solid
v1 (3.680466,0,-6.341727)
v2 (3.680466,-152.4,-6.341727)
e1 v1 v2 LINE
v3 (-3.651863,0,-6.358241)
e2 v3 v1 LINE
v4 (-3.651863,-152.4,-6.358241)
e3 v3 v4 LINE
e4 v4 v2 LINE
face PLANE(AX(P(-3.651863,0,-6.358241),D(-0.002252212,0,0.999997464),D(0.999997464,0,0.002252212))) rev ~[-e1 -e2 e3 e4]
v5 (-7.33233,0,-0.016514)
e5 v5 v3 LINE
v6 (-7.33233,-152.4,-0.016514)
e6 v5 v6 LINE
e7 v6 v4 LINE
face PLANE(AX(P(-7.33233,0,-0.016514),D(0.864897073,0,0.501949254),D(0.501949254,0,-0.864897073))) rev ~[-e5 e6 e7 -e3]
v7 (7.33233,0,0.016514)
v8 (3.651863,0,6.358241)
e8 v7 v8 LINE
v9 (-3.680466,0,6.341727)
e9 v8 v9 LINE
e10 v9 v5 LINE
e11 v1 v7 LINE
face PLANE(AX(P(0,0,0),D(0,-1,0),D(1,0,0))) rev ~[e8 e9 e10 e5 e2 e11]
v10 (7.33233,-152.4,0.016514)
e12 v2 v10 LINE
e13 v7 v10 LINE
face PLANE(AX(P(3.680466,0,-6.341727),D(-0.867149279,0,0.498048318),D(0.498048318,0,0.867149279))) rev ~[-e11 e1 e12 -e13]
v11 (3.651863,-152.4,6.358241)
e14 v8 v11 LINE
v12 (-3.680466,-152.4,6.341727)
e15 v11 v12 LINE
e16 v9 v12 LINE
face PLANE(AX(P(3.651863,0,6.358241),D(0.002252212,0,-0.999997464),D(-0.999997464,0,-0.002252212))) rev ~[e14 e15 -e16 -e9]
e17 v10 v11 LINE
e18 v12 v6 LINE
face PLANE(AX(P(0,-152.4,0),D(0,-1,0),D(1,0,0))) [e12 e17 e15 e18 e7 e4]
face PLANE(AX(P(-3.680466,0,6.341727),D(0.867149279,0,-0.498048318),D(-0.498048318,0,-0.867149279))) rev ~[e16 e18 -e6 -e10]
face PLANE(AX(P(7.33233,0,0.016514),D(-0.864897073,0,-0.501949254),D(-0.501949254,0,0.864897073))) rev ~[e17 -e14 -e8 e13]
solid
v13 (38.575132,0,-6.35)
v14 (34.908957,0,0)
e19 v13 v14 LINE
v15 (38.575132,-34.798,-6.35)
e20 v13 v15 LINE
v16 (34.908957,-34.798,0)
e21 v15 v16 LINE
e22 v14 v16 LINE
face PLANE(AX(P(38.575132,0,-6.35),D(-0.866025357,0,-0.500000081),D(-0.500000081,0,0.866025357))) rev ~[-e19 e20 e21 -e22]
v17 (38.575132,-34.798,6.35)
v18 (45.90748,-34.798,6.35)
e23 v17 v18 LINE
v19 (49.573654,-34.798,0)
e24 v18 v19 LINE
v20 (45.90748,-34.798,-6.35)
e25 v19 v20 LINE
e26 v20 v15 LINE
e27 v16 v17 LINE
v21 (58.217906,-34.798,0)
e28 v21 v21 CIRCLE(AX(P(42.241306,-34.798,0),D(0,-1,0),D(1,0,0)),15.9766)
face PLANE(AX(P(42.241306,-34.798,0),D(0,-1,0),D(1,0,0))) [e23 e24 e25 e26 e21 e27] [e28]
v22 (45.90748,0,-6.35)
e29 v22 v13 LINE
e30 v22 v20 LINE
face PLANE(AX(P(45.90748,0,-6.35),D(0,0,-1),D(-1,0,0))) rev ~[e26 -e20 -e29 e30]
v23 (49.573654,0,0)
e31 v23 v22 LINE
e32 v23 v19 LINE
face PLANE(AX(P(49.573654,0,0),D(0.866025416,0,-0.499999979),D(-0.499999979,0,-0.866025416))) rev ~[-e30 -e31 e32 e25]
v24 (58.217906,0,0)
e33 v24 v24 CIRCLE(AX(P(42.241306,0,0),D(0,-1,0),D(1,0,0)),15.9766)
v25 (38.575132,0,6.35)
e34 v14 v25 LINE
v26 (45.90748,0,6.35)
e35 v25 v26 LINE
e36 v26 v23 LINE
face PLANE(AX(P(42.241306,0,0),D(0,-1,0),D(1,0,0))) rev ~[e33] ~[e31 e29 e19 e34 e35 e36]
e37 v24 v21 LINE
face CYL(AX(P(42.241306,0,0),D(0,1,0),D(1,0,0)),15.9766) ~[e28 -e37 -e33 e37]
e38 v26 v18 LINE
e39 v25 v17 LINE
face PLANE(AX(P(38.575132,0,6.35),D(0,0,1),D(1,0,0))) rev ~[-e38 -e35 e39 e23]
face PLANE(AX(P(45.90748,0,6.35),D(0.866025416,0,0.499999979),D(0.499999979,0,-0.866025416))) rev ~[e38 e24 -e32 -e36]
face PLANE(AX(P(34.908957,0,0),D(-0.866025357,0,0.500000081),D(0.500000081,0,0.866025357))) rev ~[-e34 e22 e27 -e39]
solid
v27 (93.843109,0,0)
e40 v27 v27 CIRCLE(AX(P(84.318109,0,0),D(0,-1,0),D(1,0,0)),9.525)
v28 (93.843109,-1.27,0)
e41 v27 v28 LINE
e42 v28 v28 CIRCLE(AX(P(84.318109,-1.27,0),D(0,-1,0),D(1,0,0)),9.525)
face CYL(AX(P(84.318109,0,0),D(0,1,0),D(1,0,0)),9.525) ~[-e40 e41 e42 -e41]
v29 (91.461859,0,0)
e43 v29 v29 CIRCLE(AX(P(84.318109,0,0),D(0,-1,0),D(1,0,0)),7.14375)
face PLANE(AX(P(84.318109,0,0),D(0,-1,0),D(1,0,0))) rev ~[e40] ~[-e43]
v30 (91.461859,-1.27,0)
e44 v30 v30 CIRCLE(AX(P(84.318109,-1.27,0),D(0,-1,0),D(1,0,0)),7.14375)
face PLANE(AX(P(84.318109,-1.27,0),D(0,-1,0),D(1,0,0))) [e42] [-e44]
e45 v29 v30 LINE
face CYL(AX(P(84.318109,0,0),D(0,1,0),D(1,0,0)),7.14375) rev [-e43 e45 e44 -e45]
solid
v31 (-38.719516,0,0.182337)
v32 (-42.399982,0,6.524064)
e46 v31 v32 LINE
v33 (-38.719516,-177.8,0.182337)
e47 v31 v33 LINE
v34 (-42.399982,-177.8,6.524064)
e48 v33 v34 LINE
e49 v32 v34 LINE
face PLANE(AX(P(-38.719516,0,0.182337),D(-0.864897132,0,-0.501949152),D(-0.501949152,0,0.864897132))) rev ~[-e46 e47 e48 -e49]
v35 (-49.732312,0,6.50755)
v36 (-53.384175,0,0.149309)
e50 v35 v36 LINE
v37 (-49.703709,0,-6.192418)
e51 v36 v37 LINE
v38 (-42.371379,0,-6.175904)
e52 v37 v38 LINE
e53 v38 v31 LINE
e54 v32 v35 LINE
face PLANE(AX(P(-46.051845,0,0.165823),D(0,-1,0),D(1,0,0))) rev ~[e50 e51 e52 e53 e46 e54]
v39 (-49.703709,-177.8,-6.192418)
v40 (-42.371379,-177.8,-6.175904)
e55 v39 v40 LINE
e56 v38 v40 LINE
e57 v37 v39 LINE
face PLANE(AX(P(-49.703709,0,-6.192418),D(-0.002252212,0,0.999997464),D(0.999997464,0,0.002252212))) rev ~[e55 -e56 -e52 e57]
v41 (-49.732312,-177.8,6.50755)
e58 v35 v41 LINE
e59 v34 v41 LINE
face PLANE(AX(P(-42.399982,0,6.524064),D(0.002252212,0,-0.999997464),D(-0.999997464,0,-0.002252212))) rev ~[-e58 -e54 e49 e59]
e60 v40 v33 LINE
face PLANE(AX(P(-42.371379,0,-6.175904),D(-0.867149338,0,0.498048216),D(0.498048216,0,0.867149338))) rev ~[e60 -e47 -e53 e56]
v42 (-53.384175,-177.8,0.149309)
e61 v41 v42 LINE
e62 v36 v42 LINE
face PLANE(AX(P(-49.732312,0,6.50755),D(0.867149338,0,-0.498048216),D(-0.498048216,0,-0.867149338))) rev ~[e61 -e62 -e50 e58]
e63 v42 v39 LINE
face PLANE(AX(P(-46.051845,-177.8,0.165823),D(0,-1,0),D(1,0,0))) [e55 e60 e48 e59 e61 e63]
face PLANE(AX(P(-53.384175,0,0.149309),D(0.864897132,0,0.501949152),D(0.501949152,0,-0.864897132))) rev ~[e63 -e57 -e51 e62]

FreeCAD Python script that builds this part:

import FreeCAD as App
import Part
import Sketcher

V = App.Vector
Q = App.Units.Quantity

doc = App.newDocument("Part")
params = doc.addObject("Spreadsheet::Sheet", "Params")
for row, (alias, value) in enumerate([
    ("pad1_length", "6 in"),
    ("pad2_length", "7 in"),
    ("sketch3_diameter", "1.258 in"),
    ("pad3_length", "1.37 in"),
    ("sketch4_diameter", "0.75 in"),
    ("sketch4_diameter2", "0.5625 in"),
    ("pad4_length", "0.05 in"),
], start=1):
    params.set(f"A{row}", alias)
    params.set(f"B{row}", "=" + value)
    params.setAlias(f"B{row}", alias)

body = doc.addObject("PartDesign::Body", "Body")

sketch1 = body.newObject("Sketcher::SketchObject", "Sketch")
sketch1.AttachmentSupport = (doc.getObject("XZ_Plane"), [""])
sketch1.MapMode = "FlatFace"
sketch1.addGeometry(Part.LineSegment(V(7, 0, 0), V(4, 6, 0)), False)
sketch1.addGeometry(Part.LineSegment(V(4, 6, 0), V(-4, 6, 0)), False)
sketch1.addGeometry(Part.LineSegment(V(-4, 6, 0), V(-7, 0, 0)), False)
sketch1.addGeometry(Part.LineSegment(V(-7, 0, 0), V(-4, -6, 0)), False)
sketch1.addGeometry(Part.LineSegment(V(-4, -6, 0), V(4, -6, 0)), False)
sketch1.addGeometry(Part.LineSegment(V(4, -6, 0), V(7, 0, 0)), False)
sketch1.addConstraint(Sketcher.Constraint("Coincident", 0, 2, 1, 1))
sketch1.addConstraint(Sketcher.Constraint("Coincident", 1, 2, 2, 1))
sketch1.addConstraint(Sketcher.Constraint("Coincident", 2, 2, 3, 1))
sketch1.addConstraint(Sketcher.Constraint("Coincident", 3, 2, 4, 1))
sketch1.addConstraint(Sketcher.Constraint("Coincident", 4, 2, 5, 1))
sketch1.addConstraint(Sketcher.Constraint("Coincident", 5, 2, 0, 1))
sketch1.addConstraint(Sketcher.Constraint("Symmetric", 0, 2, 3, 2, -1, 1))
sketch1.addConstraint(Sketcher.Constraint("Symmetric", 1, 2, 4, 2, -1, 1))
sketch1.addConstraint(Sketcher.Constraint("Symmetric", 2, 2, 5, 2, -1, 1))
sketch1.addConstraint(Sketcher.Constraint("Equal", 0, 1))
sketch1.addConstraint(Sketcher.Constraint("Equal", 1, 2))
sketch1.addConstraint(Sketcher.Constraint("Distance", 0, Q("7.332349 mm")))
sketch1.addConstraint(Sketcher.Constraint("DistanceY", -1, 1, 0, 2, Q("6.358241 mm")))
sketch1.addConstraint(Sketcher.Constraint("DistanceX", 2, 2, -1, 1, Q("7.33233 mm")))
sketch1.addConstraint(Sketcher.Constraint("DistanceY", 2, 2, 1, 2, Q("6.358241 mm")))
pad1 = body.newObject("PartDesign::Pad", "Pad")
pad1.Profile = sketch1
pad1.setExpression("Length", "Params.pad1_length")
body2 = doc.addObject("PartDesign::Body", "Body001")

sketch2 = body2.newObject("Sketcher::SketchObject", "Sketch001")
sketch2.AttachmentSupport = (doc.getObject("XZ_Plane001"), [""])
sketch2.MapMode = "FlatFace"
sketch2.addGeometry(Part.LineSegment(V(-39, 0, 0), V(-42, 7, 0)), False)
sketch2.addGeometry(Part.LineSegment(V(-42, 7, 0), V(-50, 7, 0)), False)
sketch2.addGeometry(Part.LineSegment(V(-50, 7, 0), V(-53, 0, 0)), False)
sketch2.addGeometry(Part.LineSegment(V(-53, 0, 0), V(-50, -6, 0)), False)
sketch2.addGeometry(Part.LineSegment(V(-50, -6, 0), V(-42, -6, 0)), False)
sketch2.addGeometry(Part.LineSegment(V(-42, -6, 0), V(-39, 0, 0)), False)
sketch2.addConstraint(Sketcher.Constraint("Coincident", 0, 2, 1, 1))
sketch2.addConstraint(Sketcher.Constraint("Coincident", 1, 2, 2, 1))
sketch2.addConstraint(Sketcher.Constraint("Coincident", 2, 2, 3, 1))
sketch2.addConstraint(Sketcher.Constraint("Coincident", 3, 2, 4, 1))
sketch2.addConstraint(Sketcher.Constraint("Coincident", 4, 2, 5, 1))
sketch2.addConstraint(Sketcher.Constraint("Coincident", 5, 2, 0, 1))
sketch2.addConstraint(Sketcher.Constraint("Parallel", 0, 3))
sketch2.addConstraint(Sketcher.Constraint("Parallel", 1, 4))
sketch2.addConstraint(Sketcher.Constraint("Parallel", 2, 5))
sketch2.addConstraint(Sketcher.Constraint("Equal", 0, 1))
sketch2.addConstraint(Sketcher.Constraint("Equal", 1, 2))
sketch2.addConstraint(Sketcher.Constraint("Equal", 2, 3))
sketch2.addConstraint(Sketcher.Constraint("Distance", 0, Q("7.332348 mm")))
sketch2.addConstraint(Sketcher.Constraint("DistanceY", -1, 1, 1, 2, Q("6.50755 mm")))
sketch2.addConstraint(Sketcher.Constraint("DistanceY", -1, 1, 2, 2, Q("0.149309 mm")))
sketch2.addConstraint(Sketcher.Constraint("DistanceX", 3, 2, -1, 1, Q("49.703709 mm")))
sketch2.addConstraint(Sketcher.Constraint("DistanceY", 3, 2, 0, 2, Q("12.716482 mm")))
sketch2.addConstraint(Sketcher.Constraint("DistanceX", 2, 2, 5, 2, Q("14.664659 mm")))
pad2 = body2.newObject("PartDesign::Pad", "Pad001")
pad2.Profile = sketch2
pad2.setExpression("Length", "Params.pad2_length")
body3 = doc.addObject("PartDesign::Body", "Body002")

sketch3 = body3.newObject("Sketcher::SketchObject", "Sketch002")
sketch3.AttachmentSupport = (doc.getObject("XZ_Plane002"), [""])
sketch3.MapMode = "FlatFace"
sketch3.addGeometry(Part.Circle(V(42, 0, 0), V(0, 0, 1), 16), False)
sketch3.addGeometry(Part.LineSegment(V(39, -6, 0), V(35, 0, 0)), False)
sketch3.addGeometry(Part.LineSegment(V(35, 0, 0), V(39, 6, 0)), False)
sketch3.addGeometry(Part.LineSegment(V(39, 6, 0), V(46, 6, 0)), False)
sketch3.addGeometry(Part.LineSegment(V(46, 6, 0), V(50, 0, 0)), False)
sketch3.addGeometry(Part.LineSegment(V(50, 0, 0), V(46, -6, 0)), False)
sketch3.addGeometry(Part.LineSegment(V(46, -6, 0), V(39, -6, 0)), False)
sketch3.addConstraint(Sketcher.Constraint("Coincident", 1, 2, 2, 1))
sketch3.addConstraint(Sketcher.Constraint("Coincident", 2, 2, 3, 1))
sketch3.addConstraint(Sketcher.Constraint("Coincident", 3, 2, 4, 1))
sketch3.addConstraint(Sketcher.Constraint("Coincident", 4, 2, 5, 1))
sketch3.addConstraint(Sketcher.Constraint("Coincident", 5, 2, 6, 1))
sketch3.addConstraint(Sketcher.Constraint("Coincident", 6, 2, 1, 1))
sketch3.addConstraint(Sketcher.Constraint("Horizontal", 3))
sketch3.addConstraint(Sketcher.Constraint("Horizontal", 6))
sketch3.addConstraint(Sketcher.Constraint("Symmetric", 3, 2, 5, 2, -1))
sketch3.addConstraint(Sketcher.Constraint("PointOnObject", 0, 3, -1))
sketch3.addConstraint(Sketcher.Constraint("PointOnObject", 1, 2, -1))
sketch3.addConstraint(Sketcher.Constraint("PointOnObject", 4, 2, -1))
sketch3.addConstraint(Sketcher.Constraint("Parallel", 1, 4))
sketch3.addConstraint(Sketcher.Constraint("Parallel", 2, 5))
sketch3.addConstraint(Sketcher.Constraint("Diameter", 0, Q("1.258 in")))
sketch3.addConstraint(Sketcher.Constraint("Angle", 1, Q("120.000005 deg")))
sketch3.addConstraint(Sketcher.Constraint("DistanceY", 5, 2, 3, 2, Q("0.5 in")))
sketch3.addConstraint(Sketcher.Constraint("DistanceX", 3, 1, 3, 2, Q("7.332348 mm")))
sketch3.addConstraint(Sketcher.Constraint("DistanceX", -1, 1, 3, 2, Q("45.90748 mm")))
sketch3.addConstraint(Sketcher.Constraint("DistanceX", 1, 2, 0, 3, Q("7.332349 mm")))
sketch3.setExpression("Constraints[14]", "Params.sketch3_diameter")
pad3 = body3.newObject("PartDesign::Pad", "Pad002")
pad3.Profile = sketch3
pad3.setExpression("Length", "Params.pad3_length")
body4 = doc.addObject("PartDesign::Body", "Body003")

sketch4 = body4.newObject("Sketcher::SketchObject", "Sketch003")
sketch4.AttachmentSupport = (doc.getObject("XZ_Plane003"), [""])
sketch4.MapMode = "FlatFace"
sketch4.addGeometry(Part.Circle(V(84, 0, 0), V(0, 0, 1), 10), False)
sketch4.addGeometry(Part.Circle(V(84, 0, 0), V(0, 0, 1), 7), False)
sketch4.addConstraint(Sketcher.Constraint("Coincident", 1, 3, 0, 3))
sketch4.addConstraint(Sketcher.Constraint("PointOnObject", 0, 3, -1))
sketch4.addConstraint(Sketcher.Constraint("Diameter", 0, Q("0.75 in")))
sketch4.addConstraint(Sketcher.Constraint("Diameter", 1, Q("0.5625 in")))
sketch4.addConstraint(Sketcher.Constraint("DistanceX", -1, 1, 0, 3, Q("84.318109 mm")))
sketch4.setExpression("Constraints[2]", "Params.sketch4_diameter")
sketch4.setExpression("Constraints[3]", "Params.sketch4_diameter2")
pad4 = body4.newObject("PartDesign::Pad", "Pad003")
pad4.Profile = sketch4
pad4.setExpression("Length", "Params.pad4_length")

doc.recompute()
